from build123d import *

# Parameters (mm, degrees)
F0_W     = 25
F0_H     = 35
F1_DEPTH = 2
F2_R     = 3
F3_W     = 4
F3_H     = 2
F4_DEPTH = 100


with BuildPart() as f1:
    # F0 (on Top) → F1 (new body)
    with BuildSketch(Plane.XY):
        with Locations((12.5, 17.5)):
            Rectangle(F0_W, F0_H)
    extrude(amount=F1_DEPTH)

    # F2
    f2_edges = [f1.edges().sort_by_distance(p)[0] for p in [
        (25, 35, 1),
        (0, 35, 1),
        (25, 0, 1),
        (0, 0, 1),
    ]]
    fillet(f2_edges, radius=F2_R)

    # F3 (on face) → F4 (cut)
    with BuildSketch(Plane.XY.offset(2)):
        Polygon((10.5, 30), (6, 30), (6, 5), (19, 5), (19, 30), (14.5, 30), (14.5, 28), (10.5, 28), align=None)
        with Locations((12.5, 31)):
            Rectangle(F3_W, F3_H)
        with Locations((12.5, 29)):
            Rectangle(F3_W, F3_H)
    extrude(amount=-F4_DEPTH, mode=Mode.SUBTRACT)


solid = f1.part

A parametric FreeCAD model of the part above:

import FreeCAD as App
import Part
import Sketcher


def edges_at(feature, points):
    """Names of the edges that pass closest to the given points."""
    edges = feature.Shape.Edges
    near = lambda p: min(range(len(edges)), key=lambda i: edges[i].distToShape(Part.Vertex(*p))[0])
    return sorted({f"Edge{near(p) + 1}" for p in points})


def add_polygon(sketch, points):
    """Adds a closed chain of lines whose ends are joined by coincident constraints."""
    first, n = sketch.GeometryCount, len(points)
    for a, b in zip(points, points[1:] + points[:1]):
        sketch.addGeometry(Part.LineSegment(App.Vector(*a, 0), App.Vector(*b, 0)), False)
    for i in range(n):
        sketch.addConstraint(Sketcher.Constraint("Coincident", first + i, 2, first + (i + 1) % n, 1))

doc = App.newDocument("Part")
params = doc.addObject("Spreadsheet::Sheet", "Params")
for row, (alias, value) in enumerate([
    ("sketch1_width", "25 mm"),
    ("sketch1_height", "35 mm"),
    ("pad1_length", "2 mm"),
    ("fillet_radius", "3 mm"),
    ("sketch2_width", "13 mm"),
    ("sketch2_width2", "4 mm"),
    ("sketch2_height", "25 mm"),
    ("sketch2_height2", "2 mm"),
    ("pocket1_length", "100 mm"),
], start=1):
    params.set(f"A{row}", alias)
    params.set(f"B{row}", "=" + value)
    params.setAlias(f"B{row}", alias)

body = doc.addObject("PartDesign::Body", "Body")

sketch1 = body.newObject("Sketcher::SketchObject", "Sketch")
sketch1.AttachmentSupport = (doc.getObject("XY_Plane"), [""])
sketch1.MapMode = "FlatFace"
add_polygon(sketch1, [(0, 35), (0, 0), (25, 0), (25, 35)])
sketch1.addConstraint([
    Sketcher.Constraint("Vertical", 0),
    Sketcher.Constraint("Horizontal", 1),
    Sketcher.Constraint("Vertical", 2),
    Sketcher.Constraint("Horizontal", 3),
    Sketcher.Constraint("Coincident", 0, 2, -1, 1),
    Sketcher.Constraint("DistanceX", 1, 1, 1, 2, 25.0),
    Sketcher.Constraint("DistanceY", 0, 2, 0, 1, 35.0),
])
sketch1.setExpression("Constraints[9]", "Params.sketch1_width")
sketch1.setExpression("Constraints[10]", "Params.sketch1_height")
pad1 = body.newObject("PartDesign::Pad", "Pad")
pad1.Profile = sketch1
pad1.setExpression("Length", "Params.pad1_length")
doc.recompute()

fillet = body.newObject("PartDesign::Fillet", "Fillet")
fillet.Base = (pad1, edges_at(pad1, [
    (25, 35, 1),
    (0, 35, 1),
    (25, 0, 1),
    (0, 0, 1),
]))
fillet.setExpression("Radius", "Params.fillet_radius")

sketch2 = body.newObject("Sketcher::SketchObject", "Sketch001")
sketch2.AttachmentSupport = (doc.getObject("XY_Plane"), [""])
sketch2.MapMode = "FlatFace"
sketch2.AttachmentOffset = App.Placement(App.Vector(0, 0, 2), App.Rotation())
add_polygon(sketch2, [(10.5, 30), (6, 30), (6, 5), (19, 5), (19, 30), (14.5, 30), (14.5, 32), (10.5, 32)])
sketch2.addConstraint([
    Sketcher.Constraint("Horizontal", 0),
    Sketcher.Constraint("Vertical", 1),
    Sketcher.Constraint("Horizontal", 2),
    Sketcher.Constraint("Vertical", 3),
    Sketcher.Constraint("Horizontal", 4),
    Sketcher.Constraint("Vertical", 5),
    Sketcher.Constraint("Horizontal", 6),
    Sketcher.Constraint("Vertical", 7),
    Sketcher.Constraint("Horizontal", 0, 2, 3, 2),
    Sketcher.Constraint("Equal", 0, 4),
    Sketcher.Constraint("DistanceX", 2, 1, 2, 2, 13.0),
    Sketcher.Constraint("DistanceX", 6, 2, 6, 1, 4.0),
    Sketcher.Constraint("DistanceY", 1, 2, 1, 1, 25.0),
    Sketcher.Constraint("DistanceY", 5, 1, 5, 2, 2.0),
    Sketcher.Constraint("DistanceX", -1, 1, 0, 2, 6.0),
    Sketcher.Constraint("DistanceY", -1, 1, 0, 2, 30.0),
])
sketch2.setExpression("Constraints[18]", "Params.sketch2_width")
sketch2.setExpression("Constraints[19]", "Params.sketch2_width2")
sketch2.setExpression("Constraints[20]", "Params.sketch2_height")
sketch2.setExpression("Constraints[21]", "Params.sketch2_height2")
pocket1 = body.newObject("PartDesign::Pocket", "Pocket")
pocket1.Profile = sketch2
pocket1.setExpression("Length", "Params.pocket1_length")

doc.recompute()
